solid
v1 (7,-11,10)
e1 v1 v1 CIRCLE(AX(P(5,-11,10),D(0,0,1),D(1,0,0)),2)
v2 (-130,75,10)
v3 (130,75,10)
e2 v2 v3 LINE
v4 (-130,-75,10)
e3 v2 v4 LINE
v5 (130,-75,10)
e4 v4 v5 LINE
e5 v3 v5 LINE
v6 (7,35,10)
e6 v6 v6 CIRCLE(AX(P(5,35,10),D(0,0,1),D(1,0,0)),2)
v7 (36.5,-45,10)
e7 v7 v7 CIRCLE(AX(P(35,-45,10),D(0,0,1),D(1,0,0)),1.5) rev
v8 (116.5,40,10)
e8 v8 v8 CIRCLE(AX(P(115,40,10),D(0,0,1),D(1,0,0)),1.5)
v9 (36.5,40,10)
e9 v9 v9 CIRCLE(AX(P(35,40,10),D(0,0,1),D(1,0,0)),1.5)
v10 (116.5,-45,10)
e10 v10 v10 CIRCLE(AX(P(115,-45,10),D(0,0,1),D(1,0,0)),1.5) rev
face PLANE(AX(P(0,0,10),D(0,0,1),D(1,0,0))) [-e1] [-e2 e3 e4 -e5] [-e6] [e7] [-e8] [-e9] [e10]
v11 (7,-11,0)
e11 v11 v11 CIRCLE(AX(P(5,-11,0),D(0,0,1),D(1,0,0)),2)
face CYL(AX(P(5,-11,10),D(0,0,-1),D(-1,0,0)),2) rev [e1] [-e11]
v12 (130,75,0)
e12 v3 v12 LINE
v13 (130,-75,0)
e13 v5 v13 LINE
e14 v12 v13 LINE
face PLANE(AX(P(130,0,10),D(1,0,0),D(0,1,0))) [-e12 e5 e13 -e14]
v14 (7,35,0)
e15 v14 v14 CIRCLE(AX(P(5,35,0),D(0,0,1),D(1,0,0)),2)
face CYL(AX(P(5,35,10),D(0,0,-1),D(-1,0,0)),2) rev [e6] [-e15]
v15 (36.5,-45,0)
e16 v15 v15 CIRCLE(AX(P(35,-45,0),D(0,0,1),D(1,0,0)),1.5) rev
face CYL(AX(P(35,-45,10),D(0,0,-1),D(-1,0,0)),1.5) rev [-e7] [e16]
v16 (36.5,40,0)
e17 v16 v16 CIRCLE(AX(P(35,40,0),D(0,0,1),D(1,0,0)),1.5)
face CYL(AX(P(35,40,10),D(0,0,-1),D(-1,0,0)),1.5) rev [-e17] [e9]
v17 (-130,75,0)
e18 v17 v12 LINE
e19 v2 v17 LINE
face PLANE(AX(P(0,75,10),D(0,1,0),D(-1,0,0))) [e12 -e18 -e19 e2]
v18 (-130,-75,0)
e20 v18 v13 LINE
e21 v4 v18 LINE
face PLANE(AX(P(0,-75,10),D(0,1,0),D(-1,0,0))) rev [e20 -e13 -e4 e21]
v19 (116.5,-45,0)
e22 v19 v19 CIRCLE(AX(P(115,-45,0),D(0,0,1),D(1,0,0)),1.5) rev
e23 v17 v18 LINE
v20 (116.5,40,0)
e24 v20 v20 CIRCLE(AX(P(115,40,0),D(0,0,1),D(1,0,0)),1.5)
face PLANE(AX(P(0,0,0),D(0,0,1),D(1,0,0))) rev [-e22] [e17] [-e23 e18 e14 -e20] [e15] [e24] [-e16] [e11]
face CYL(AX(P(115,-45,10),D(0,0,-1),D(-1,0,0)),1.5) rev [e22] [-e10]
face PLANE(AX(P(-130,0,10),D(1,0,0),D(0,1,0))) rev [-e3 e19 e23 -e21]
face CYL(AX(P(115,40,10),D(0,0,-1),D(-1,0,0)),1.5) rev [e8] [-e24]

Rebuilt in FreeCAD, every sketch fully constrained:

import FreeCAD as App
import Part
import Sketcher

V = App.Vector
Q = App.Units.Quantity

doc = App.newDocument("Part")
params = doc.addObject("Spreadsheet::Sheet", "Params")
for row, (alias, value) in enumerate([
    ("sketch1_diameter", "3 mm"),
    ("sketch1_diameter2", "4 mm"),
    ("sketch1_width", "260 mm"),
    ("sketch1_height", "150 mm"),
    ("pad1_length", "10 mm"),
], start=1):
    params.set(f"A{row}", alias)
    params.set(f"B{row}", "=" + value)
    params.setAlias(f"B{row}", alias)

body = doc.addObject("PartDesign::Body", "Body")

# Sketch on XY plane
sketch1 = doc.addObject("Sketcher::SketchObject", "Sketch")
body.addObject(sketch1)
sketch1.AttachmentSupport = (doc.XY_Plane, [""])
sketch1.MapMode = "FlatFace"
sketch1.addGeometry([
    Part.LineSegment(V(-130, 75, 0), V(-130, -75, 0)),  # 0
    Part.LineSegment(V(-130, -75, 0), V(130, -75, 0)),  # 1
    Part.LineSegment(V(130, -75, 0), V(130, 75, 0)),  # 2
    Part.LineSegment(V(130, 75, 0), V(-130, 75, 0)),  # 3
    Part.Circle(V(35, -45, 0), V(0, 0, 1), 1.5),  # 4
    Part.Circle(V(5, -11, 0), V(0, 0, 1), 2),  # 5
    Part.Circle(V(115, -45, 0), V(0, 0, 1), 1.5),  # 6
    Part.Circle(V(5, 35, 0), V(0, 0, 1), 2),  # 7
    Part.Circle(V(35, 40, 0), V(0, 0, 1), 1.5),  # 8
    Part.Circle(V(115, 40, 0), V(0, 0, 1), 1.5),  # 9
], False)
sketch1.addConstraint([
    Sketcher.Constraint("Coincident", 0, 2, 1, 1),
    Sketcher.Constraint("Coincident", 1, 2, 2, 1),
    Sketcher.Constraint("Coincident", 2, 2, 3, 1),
    Sketcher.Constraint("Coincident", 3, 2, 0, 1),
    Sketcher.Constraint("Vertical", 0),
    Sketcher.Constraint("Horizontal", 1),
    Sketcher.Constraint("Vertical", 2),
    Sketcher.Constraint("Horizontal", 3),
    Sketcher.Constraint("Equal", 4, 6),
    Sketcher.Constraint("Equal", 5, 7),
    Sketcher.Constraint("Equal", 6, 8),
    Sketcher.Constraint("Equal", 8, 9),
    Sketcher.Constraint("Symmetric", 0, 2, 2, 2, -1, 1),
    Sketcher.Constraint("Horizontal", 4, 3, 6, 3),
    Sketcher.Constraint("Horizontal", 8, 3, 9, 3),
    Sketcher.Constraint("Vertical", 5, 3, 7, 3),
    Sketcher.Constraint("Vertical", 4, 3, 8, 3),
    Sketcher.Constraint("Vertical", 6, 3, 9, 3),
    Sketcher.Constraint("Diameter", 4, Q("3 mm")),
    Sketcher.Constraint("Diameter", 5, Q("4 mm")),
    Sketcher.Constraint("DistanceX", 1, 1, 1, 2, Q("260 mm")),
    Sketcher.Constraint("DistanceY", 0, 2, 0, 1, Q("150 mm")),
    Sketcher.Constraint("DistanceX", -1, 1, 4, 3, Q("35 mm")),
    Sketcher.Constraint("DistanceY", 4, 3, -1, 1, Q("45 mm")),
    Sketcher.Constraint("DistanceX", -1, 1, 5, 3, Q("5 mm")),
    Sketcher.Constraint("DistanceY", 5, 3, -1, 1, Q("11 mm")),
    Sketcher.Constraint("DistanceX", -1, 1, 6, 3, Q("115 mm")),
    Sketcher.Constraint("DistanceY", -1, 1, 7, 3, Q("35 mm")),
    Sketcher.Constraint("DistanceY", -1, 1, 8, 3, Q("40 mm")),
])
sketch1.setExpression("Constraints[18]", "Params.sketch1_diameter")
sketch1.setExpression("Constraints[19]", "Params.sketch1_diameter2")
sketch1.setExpression("Constraints[20]", "Params.sketch1_width")
sketch1.setExpression("Constraints[21]", "Params.sketch1_height")
pad1 = doc.addObject("PartDesign::Pad", "Pad")
body.addObject(pad1)
pad1.Profile = sketch1
pad1.setExpression("Length", "Params.pad1_length")

doc.recompute()
